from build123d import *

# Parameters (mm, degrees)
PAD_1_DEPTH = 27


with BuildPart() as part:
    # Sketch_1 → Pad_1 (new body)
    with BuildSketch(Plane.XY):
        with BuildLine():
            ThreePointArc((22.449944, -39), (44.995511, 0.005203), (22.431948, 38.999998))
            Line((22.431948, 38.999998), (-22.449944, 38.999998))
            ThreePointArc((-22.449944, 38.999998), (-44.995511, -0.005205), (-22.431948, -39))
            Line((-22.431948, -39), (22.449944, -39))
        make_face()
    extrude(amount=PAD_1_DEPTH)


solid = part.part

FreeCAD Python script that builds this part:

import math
import FreeCAD as App
import Part
import Sketcher

V = App.Vector
Q = App.Units.Quantity

doc = App.newDocument("Part")
params = doc.addObject("Spreadsheet::Sheet", "Params")
for row, (alias, value) in enumerate([
    ("pad1_length", "27 mm"),
], start=1):
    params.set(f"A{row}", alias)
    params.set(f"B{row}", "=" + value)
    params.setAlias(f"B{row}", alias)

body = doc.addObject("PartDesign::Body", "Body")

# Sketch on XY plane
sketch1 = doc.addObject("Sketcher::SketchObject", "Sketch")
body.addObject(sketch1)
sketch1.AttachmentSupport = (doc.XY_Plane, [""])
sketch1.MapMode = "FlatFace"
sketch1.addGeometry(Part.ArcOfCircle(Part.Circle(V(0, 0, 0), V(0, 0, 1), 45), math.radians(-60), math.radians(60)), False)
sketch1.addGeometry(Part.LineSegment(V(22, 39, 0), V(-22, 39, 0)), False)
sketch1.addGeometry(Part.ArcOfCircle(Part.Circle(V(0, 0, 0), V(0, 0, 1), 45), math.radians(120), math.radians(240)), False)
sketch1.addGeometry(Part.LineSegment(V(-22, -39, 0), V(22, -39, 0)), False)
sketch1.addConstraint(Sketcher.Constraint("Coincident", 0, 2, 1, 1))
sketch1.addConstraint(Sketcher.Constraint("Coincident", 1, 2, 2, 1))
sketch1.addConstraint(Sketcher.Constraint("Coincident", 2, 2, 3, 1))
sketch1.addConstraint(Sketcher.Constraint("Coincident", 3, 2, 0, 1))
sketch1.addConstraint(Sketcher.Constraint("Horizontal", 1))
sketch1.addConstraint(Sketcher.Constraint("Horizontal", 3))
sketch1.addConstraint(Sketcher.Constraint("Equal", 0, 2))
sketch1.addConstraint(Sketcher.Constraint("Symmetric", 0, 3, 2, 3, -1, 1))
sketch1.addConstraint(Sketcher.Constraint("PointOnObject", 0, 3, -2))
sketch1.addConstraint(Sketcher.Constraint("Equal", 1, 3))
sketch1.addConstraint(Sketcher.Constraint("DistanceY", 2, 2, -1, 1, Q("39 mm")))
sketch1.addConstraint(Sketcher.Constraint("Radius", 0, Q("44.995512 mm")))
sketch1.addConstraint(Sketcher.Constraint("DistanceY", 0, 3, -1, 1, Q("0.005179 mm")))
pad1 = doc.addObject("PartDesign::Pad", "Pad")
body.addObject(pad1)
pad1.Profile = sketch1
pad1.setExpression("Length", "Params.pad1_length")

doc.recompute()
